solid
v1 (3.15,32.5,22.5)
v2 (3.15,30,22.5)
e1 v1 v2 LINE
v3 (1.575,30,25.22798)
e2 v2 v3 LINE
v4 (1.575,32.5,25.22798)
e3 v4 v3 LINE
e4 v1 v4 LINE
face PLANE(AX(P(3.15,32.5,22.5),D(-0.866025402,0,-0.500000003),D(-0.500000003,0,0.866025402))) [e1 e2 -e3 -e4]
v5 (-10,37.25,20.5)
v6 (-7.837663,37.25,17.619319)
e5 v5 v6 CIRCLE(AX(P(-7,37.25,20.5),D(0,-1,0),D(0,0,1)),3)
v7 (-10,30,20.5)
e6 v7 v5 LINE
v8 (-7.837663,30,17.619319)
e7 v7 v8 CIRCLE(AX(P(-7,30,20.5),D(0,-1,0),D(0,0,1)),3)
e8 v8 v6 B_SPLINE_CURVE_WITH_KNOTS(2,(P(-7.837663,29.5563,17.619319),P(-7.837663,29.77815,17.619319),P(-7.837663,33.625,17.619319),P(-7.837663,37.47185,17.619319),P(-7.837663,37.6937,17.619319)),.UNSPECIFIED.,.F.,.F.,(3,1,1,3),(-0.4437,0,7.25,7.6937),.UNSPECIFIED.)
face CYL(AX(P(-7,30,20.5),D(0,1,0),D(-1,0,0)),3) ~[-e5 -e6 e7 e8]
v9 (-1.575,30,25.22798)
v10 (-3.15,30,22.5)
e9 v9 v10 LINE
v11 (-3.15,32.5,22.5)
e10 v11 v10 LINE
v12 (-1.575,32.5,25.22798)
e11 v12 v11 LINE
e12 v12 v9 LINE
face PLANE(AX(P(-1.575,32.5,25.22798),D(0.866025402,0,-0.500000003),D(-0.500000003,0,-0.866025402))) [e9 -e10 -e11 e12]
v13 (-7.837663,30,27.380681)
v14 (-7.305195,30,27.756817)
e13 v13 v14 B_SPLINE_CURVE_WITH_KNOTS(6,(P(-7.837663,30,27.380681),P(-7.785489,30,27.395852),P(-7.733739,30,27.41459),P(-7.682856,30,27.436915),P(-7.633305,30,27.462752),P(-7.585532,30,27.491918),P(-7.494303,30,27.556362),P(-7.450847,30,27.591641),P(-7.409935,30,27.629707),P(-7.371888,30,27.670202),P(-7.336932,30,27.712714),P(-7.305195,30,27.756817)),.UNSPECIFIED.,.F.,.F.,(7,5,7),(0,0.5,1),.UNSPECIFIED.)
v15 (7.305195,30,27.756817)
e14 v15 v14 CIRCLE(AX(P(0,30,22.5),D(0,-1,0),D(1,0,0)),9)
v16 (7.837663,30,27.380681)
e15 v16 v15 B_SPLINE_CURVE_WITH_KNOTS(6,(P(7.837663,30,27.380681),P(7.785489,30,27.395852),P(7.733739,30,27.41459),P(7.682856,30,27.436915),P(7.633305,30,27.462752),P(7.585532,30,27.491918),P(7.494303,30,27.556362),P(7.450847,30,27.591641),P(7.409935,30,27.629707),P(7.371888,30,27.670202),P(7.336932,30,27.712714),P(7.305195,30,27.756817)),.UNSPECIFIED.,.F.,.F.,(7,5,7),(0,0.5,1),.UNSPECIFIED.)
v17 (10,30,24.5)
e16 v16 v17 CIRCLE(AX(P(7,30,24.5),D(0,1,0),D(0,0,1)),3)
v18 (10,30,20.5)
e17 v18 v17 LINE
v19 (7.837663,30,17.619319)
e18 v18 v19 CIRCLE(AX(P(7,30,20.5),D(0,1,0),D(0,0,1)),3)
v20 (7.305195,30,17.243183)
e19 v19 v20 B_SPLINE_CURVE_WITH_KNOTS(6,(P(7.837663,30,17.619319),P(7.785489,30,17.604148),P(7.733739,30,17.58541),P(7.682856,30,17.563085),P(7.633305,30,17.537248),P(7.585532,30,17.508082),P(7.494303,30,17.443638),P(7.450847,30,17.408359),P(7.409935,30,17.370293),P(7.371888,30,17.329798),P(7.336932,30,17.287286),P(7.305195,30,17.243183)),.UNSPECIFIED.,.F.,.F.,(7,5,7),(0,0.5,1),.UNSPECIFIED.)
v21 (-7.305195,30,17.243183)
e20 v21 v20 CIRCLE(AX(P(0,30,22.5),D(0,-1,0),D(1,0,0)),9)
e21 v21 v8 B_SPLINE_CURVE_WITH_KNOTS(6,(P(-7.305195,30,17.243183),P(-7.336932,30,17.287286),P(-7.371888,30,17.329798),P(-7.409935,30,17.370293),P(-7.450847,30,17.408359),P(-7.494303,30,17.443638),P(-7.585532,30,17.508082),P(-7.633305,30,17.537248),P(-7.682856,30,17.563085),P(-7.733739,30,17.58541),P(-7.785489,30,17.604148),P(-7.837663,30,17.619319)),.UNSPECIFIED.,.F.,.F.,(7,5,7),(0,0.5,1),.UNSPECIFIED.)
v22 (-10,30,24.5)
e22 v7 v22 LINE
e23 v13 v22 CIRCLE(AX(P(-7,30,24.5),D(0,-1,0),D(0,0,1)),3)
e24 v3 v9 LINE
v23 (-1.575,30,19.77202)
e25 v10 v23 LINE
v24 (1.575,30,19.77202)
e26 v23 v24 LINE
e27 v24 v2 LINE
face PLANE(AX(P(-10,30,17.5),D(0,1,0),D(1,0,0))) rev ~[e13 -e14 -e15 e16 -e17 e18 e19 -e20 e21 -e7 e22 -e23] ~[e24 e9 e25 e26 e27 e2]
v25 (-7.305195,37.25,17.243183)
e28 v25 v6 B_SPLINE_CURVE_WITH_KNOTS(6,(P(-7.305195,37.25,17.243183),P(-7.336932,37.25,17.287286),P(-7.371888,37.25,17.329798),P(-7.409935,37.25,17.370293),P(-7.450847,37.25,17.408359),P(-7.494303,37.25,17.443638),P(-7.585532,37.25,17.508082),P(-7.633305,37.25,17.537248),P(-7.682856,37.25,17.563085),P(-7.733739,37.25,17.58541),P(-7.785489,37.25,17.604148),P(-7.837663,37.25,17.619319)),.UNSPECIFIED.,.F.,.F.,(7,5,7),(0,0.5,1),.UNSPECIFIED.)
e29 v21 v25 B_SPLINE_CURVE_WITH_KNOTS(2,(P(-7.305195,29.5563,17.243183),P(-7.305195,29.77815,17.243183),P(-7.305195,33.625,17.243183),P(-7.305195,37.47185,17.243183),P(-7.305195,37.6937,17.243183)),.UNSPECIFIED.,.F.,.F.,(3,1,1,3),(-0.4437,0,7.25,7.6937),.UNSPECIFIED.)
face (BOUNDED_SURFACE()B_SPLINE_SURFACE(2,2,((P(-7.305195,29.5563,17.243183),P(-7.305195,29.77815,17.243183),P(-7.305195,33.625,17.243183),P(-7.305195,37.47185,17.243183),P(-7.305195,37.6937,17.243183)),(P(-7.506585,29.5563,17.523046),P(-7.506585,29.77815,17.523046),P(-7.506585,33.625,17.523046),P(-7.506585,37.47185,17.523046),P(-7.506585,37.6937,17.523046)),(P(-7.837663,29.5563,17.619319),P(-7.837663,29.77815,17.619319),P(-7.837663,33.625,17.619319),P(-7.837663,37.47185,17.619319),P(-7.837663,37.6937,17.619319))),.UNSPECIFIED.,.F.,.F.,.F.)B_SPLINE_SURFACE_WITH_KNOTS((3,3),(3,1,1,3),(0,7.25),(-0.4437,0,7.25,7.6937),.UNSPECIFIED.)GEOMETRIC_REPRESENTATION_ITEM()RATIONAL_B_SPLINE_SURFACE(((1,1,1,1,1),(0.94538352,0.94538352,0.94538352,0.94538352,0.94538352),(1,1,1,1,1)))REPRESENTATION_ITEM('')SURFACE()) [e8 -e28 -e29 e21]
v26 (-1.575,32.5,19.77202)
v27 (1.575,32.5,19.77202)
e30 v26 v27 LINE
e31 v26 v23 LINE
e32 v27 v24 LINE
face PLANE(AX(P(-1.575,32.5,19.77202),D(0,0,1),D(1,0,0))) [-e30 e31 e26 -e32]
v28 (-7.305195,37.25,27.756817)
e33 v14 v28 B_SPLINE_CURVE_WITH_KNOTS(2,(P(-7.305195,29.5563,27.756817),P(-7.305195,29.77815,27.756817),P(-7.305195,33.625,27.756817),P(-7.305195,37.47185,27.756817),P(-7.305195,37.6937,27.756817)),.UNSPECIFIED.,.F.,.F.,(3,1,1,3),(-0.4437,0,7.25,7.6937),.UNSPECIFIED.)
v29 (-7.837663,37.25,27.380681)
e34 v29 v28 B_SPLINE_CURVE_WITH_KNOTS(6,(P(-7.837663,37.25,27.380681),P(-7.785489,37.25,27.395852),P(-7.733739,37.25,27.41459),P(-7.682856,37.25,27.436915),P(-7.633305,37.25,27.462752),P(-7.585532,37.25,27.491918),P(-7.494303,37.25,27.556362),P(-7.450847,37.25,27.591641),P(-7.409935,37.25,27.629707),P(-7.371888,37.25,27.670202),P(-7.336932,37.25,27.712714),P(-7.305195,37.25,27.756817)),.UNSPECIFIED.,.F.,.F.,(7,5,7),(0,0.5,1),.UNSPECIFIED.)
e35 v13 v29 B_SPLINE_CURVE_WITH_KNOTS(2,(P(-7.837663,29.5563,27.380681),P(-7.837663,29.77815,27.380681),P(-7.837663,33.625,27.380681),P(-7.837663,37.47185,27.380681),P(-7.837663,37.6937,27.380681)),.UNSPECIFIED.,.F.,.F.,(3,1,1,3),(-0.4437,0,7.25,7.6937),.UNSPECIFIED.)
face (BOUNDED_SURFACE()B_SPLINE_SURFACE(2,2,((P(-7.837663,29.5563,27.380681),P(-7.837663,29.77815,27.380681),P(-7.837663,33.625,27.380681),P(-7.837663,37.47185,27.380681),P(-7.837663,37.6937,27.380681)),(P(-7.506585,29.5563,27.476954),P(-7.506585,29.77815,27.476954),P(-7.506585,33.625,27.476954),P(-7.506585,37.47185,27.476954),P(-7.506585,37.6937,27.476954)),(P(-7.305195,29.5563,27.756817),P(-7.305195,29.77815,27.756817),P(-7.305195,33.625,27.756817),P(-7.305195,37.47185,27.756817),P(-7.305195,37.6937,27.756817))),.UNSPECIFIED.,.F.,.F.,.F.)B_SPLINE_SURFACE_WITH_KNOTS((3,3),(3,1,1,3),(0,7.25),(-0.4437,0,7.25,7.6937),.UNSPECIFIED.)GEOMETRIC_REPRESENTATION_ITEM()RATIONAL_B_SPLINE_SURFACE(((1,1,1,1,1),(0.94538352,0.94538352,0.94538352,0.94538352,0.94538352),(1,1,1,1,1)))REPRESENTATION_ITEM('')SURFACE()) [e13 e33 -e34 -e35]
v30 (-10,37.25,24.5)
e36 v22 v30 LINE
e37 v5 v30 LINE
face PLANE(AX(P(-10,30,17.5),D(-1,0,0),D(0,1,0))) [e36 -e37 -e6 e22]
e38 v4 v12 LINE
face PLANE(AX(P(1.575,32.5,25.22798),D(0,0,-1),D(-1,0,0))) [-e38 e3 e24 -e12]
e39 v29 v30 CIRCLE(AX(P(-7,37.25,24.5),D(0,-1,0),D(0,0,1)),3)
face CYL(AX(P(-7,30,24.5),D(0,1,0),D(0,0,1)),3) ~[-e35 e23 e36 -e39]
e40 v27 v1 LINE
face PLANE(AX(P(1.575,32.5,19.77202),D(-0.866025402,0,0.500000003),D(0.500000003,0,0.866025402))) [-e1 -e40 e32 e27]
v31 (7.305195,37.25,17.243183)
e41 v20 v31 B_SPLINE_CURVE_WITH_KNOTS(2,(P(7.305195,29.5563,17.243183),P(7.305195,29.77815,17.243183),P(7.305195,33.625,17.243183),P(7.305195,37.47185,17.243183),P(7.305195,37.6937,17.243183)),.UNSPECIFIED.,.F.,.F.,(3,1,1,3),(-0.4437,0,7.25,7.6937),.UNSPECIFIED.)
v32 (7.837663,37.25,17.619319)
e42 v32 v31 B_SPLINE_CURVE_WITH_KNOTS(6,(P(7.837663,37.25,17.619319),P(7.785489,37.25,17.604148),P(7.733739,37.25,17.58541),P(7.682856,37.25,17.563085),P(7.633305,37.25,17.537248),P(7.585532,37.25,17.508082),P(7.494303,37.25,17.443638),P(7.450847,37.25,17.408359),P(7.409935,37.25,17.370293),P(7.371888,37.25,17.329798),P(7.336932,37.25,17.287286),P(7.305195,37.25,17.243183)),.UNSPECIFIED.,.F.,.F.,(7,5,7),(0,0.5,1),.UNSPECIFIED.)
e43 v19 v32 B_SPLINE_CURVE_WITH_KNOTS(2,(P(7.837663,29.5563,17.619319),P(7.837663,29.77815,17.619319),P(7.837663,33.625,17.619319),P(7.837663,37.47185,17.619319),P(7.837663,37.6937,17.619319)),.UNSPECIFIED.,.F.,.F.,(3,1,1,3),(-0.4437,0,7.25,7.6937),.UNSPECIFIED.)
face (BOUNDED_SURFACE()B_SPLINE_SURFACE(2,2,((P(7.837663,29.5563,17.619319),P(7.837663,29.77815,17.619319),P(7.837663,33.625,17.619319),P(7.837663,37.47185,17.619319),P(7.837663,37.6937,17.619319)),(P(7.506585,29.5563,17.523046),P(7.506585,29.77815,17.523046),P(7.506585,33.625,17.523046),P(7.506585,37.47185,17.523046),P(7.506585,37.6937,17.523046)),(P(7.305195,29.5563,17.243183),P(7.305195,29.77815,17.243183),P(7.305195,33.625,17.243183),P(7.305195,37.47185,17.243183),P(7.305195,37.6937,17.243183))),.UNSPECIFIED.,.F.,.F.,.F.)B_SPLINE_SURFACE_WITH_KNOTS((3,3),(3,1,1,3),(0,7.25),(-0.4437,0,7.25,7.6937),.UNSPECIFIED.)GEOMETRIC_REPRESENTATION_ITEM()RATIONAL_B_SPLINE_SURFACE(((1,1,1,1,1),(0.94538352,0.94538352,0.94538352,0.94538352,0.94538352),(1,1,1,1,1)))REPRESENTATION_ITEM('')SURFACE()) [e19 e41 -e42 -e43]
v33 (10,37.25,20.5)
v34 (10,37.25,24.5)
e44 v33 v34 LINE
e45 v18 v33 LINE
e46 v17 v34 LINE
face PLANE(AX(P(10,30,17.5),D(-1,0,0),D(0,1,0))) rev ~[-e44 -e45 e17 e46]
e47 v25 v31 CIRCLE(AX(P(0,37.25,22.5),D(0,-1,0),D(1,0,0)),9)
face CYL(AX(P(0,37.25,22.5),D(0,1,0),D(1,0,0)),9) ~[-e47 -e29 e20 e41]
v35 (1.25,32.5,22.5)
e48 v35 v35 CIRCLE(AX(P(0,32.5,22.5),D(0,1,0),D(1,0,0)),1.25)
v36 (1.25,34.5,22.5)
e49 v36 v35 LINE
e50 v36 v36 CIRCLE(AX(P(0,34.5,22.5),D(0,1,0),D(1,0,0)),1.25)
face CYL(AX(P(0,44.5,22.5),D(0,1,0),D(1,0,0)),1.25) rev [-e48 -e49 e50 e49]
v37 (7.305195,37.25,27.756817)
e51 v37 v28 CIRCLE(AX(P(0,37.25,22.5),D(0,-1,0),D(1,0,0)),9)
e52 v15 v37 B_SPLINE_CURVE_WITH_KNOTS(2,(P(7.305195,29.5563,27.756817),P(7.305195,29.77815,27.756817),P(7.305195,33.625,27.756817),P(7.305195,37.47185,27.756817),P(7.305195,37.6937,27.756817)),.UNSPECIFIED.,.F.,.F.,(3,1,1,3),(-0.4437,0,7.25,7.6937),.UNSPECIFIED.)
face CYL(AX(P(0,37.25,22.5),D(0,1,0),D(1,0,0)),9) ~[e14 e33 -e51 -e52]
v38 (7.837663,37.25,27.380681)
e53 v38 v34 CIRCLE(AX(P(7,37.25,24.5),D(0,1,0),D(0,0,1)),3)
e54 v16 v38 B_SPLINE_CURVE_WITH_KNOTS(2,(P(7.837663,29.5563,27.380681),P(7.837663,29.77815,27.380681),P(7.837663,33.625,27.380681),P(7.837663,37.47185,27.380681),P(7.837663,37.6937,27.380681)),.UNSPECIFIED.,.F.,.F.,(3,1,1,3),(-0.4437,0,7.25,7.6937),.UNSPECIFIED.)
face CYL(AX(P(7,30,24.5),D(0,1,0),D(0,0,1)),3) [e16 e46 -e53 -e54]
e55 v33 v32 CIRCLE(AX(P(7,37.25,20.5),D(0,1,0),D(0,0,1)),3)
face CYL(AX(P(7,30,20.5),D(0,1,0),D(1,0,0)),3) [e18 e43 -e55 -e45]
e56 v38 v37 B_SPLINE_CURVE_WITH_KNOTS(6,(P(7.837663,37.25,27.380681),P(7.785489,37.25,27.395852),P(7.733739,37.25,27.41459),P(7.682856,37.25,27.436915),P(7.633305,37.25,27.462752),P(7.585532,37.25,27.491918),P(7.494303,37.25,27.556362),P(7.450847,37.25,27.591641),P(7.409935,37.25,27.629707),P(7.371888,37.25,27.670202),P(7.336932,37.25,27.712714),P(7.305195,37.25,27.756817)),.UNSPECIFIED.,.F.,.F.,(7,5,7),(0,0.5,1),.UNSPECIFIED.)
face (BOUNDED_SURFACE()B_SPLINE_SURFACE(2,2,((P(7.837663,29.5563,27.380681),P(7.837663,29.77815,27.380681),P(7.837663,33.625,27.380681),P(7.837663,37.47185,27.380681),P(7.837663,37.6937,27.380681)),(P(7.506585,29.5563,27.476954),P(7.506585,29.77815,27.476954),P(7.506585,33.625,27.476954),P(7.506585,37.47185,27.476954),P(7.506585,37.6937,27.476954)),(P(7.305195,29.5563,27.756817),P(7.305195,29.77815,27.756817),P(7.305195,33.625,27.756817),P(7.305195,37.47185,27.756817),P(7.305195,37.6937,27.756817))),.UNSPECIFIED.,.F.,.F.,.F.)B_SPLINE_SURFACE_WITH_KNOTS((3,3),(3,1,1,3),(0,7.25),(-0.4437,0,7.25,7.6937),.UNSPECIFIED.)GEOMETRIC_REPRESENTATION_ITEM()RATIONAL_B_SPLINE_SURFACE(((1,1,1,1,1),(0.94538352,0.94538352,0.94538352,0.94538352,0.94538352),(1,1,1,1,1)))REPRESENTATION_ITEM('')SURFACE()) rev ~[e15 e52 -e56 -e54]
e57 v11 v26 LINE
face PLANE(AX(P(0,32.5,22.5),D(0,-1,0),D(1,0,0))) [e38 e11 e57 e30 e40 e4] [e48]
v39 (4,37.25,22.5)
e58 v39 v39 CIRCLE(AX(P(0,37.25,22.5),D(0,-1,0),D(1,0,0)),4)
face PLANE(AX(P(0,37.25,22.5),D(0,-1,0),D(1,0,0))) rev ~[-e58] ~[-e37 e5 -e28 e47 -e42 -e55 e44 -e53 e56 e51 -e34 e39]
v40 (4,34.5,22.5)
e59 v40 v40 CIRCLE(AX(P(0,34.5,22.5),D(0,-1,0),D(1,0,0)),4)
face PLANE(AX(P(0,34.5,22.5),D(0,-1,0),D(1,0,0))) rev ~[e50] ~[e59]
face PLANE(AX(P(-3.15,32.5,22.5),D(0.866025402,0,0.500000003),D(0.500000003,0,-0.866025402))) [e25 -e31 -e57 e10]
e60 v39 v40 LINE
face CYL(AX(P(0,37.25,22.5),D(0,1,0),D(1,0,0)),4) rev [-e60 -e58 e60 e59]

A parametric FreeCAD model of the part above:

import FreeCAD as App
import Part
import Sketcher
Q = App.Units.Quantity


def edges_at(feature, points):
    """Names of the edges that pass closest to the given points."""
    edges = feature.Shape.Edges
    near = lambda p: min(range(len(edges)), key=lambda i: edges[i].distToShape(Part.Vertex(*p))[0])
    return sorted({f"Edge{near(p) + 1}" for p in points})


def add_polygon(sketch, points):
    """Adds a closed chain of lines whose ends are joined by coincident constraints."""
    first, n = sketch.GeometryCount, len(points)
    for a, b in zip(points, points[1:] + points[:1]):
        sketch.addGeometry(Part.LineSegment(App.Vector(*a, 0), App.Vector(*b, 0)), False)
    for i in range(n):
        sketch.addConstraint(Sketcher.Constraint("Coincident", first + i, 2, first + (i + 1) % n, 1))

doc = App.newDocument("Part")
params = doc.addObject("Spreadsheet::Sheet", "Params")
for row, (alias, value) in enumerate([
    ("sketch1_diameter", "8 mm"),
    ("pad1_length", "10 mm"),
    ("sketch2_diameter", "2.5 mm"),
    ("pad2_length", "50 mm"),
    ("sketch3_width", "3.15 mm"),
    ("pad3_length", "2.5 mm"),
    ("sketch4_width", "20 mm"),
    ("sketch4_height", "7.25 mm"),
    ("pad4_length", "10 mm"),
    ("fillet_radius", "3 mm"),
    ("fillet2_radius", "3 mm"),
    ("sketch5_diameter", "8 mm"),
    ("pad5_length", "7.25 mm"),
    ("sketch6_diameter", "18 mm"),
    ("pad6_length", "7.25 mm"),
    ("fillet3_radius", "1 mm"),
], start=1):
    params.set(f"A{row}", alias)
    params.set(f"B{row}", "=" + value)
    params.setAlias(f"B{row}", alias)

body = doc.addObject("PartDesign::Body", "Body")

# Sketch on XZ plane
sketch1 = body.newObject("Sketcher::SketchObject", "Sketch")
sketch1.AttachmentSupport = (doc.getObject("XZ_Plane"), [""])
sketch1.MapMode = "FlatFace"
sketch1.AttachmentOffset = App.Placement(App.Vector(0, 0, 16), App.Rotation())
sketch1.addGeometry(Part.Circle(App.Vector(0, 22.5, 0), App.Vector(0, 0, 1), 4), False)
sketch1.addConstraint(Sketcher.Constraint("PointOnObject", 0, 3, -2))
sketch1.addConstraint(Sketcher.Constraint("Diameter", 0, Q("8 mm")))
sketch1.addConstraint(Sketcher.Constraint("DistanceY", -1, 1, 0, 3, Q("22.5 mm")))
sketch1.setExpression("Constraints[1]", "Params.sketch1_diameter")
pad1 = body.newObject("PartDesign::Pad", "Pad")
pad1.Profile = sketch1
pad1.setExpression("Length", "Params.pad1_length")
body2 = doc.addObject("PartDesign::Body", "Body001")

# Sketch on XZ plane
sketch2 = body2.newObject("Sketcher::SketchObject", "Sketch001")
sketch2.AttachmentSupport = (doc.getObject("XZ_Plane001"), [""])
sketch2.MapMode = "FlatFace"
sketch2.AttachmentOffset = App.Placement(App.Vector(0, 0, 16), App.Rotation())
sketch2.addGeometry(Part.Circle(App.Vector(0, 22.5, 0), App.Vector(0, 0, 1), 1.2), False)
sketch2.addConstraint(Sketcher.Constraint("PointOnObject", 0, 3, -2))
sketch2.addConstraint(Sketcher.Constraint("Diameter", 0, Q("2.5 mm")))
sketch2.addConstraint(Sketcher.Constraint("DistanceY", -1, 1, 0, 3, Q("22.5 mm")))
sketch2.setExpression("Constraints[1]", "Params.sketch2_diameter")
pad2 = body2.newObject("PartDesign::Pad", "Pad001")
pad2.Profile = sketch2
pad2.setExpression("Length", "Params.pad2_length")
doc.recompute()

boolean = body2.newObject("PartDesign::Boolean", "Boolean")
boolean.Type = "Fuse"
boolean.addObjects([body])
body3 = doc.addObject("PartDesign::Body", "Body002")
doc.recompute()

body2.Placement = App.Placement(App.Vector(0, 57, 0), App.Rotation(App.Vector(0, 0, 1), 0))
boolean2 = body3.newObject("PartDesign::Boolean", "Boolean001")
boolean2.Type = "Fuse"
boolean2.addObjects([body2])
body4 = doc.addObject("PartDesign::Body", "Body003")

# Sketch on XZ plane
sketch3 = body4.newObject("Sketcher::SketchObject", "Sketch002")
sketch3.AttachmentSupport = (doc.getObject("XZ_Plane003"), [""])
sketch3.MapMode = "FlatFace"
sketch3.AttachmentOffset = App.Placement(App.Vector(0, 0, -29), App.Rotation())
add_polygon(sketch3, [(3.1, 22.5), (1.6, 25.2), (-1.6, 25.2), (-3.1, 22.5), (-1.6, 19.8), (1.6, 19.8)])  # lines 0-5
sketch3.addConstraint(Sketcher.Constraint("Horizontal", 1))
sketch3.addConstraint(Sketcher.Constraint("Horizontal", 4))
sketch3.addConstraint(Sketcher.Constraint("Symmetric", 2, 2, 5, 2, -2))
sketch3.addConstraint(Sketcher.Constraint("Parallel", 0, 3))
sketch3.addConstraint(Sketcher.Constraint("Parallel", 2, 5))
sketch3.addConstraint(Sketcher.Constraint("Vertical", 1, 2, 3, 2))
sketch3.addConstraint(Sketcher.Constraint("Vertical", 0, 2, 4, 2))
sketch3.addConstraint(Sketcher.Constraint("Angle", 0, Q("120 deg")))
sketch3.addConstraint(Sketcher.Constraint("DistanceX", 1, 2, 1, 1, Q("3.15 mm")))
sketch3.addConstraint(Sketcher.Constraint("DistanceY", -1, 1, 2, 2, Q("22.5 mm")))
sketch3.addConstraint(Sketcher.Constraint("DistanceX", 2, 2, 5, 2, Q("6.3 mm")))
sketch3.setExpression("Constraints[14]", "Params.sketch3_width")
pad3 = body4.newObject("PartDesign::Pad", "Pad002")
pad3.Profile = sketch3
pad3.setExpression("Length", "Params.pad3_length")
doc.recompute()

boolean3 = body4.newObject("PartDesign::Boolean", "Boolean002")
boolean3.Type = "Fuse"
boolean3.addObjects([body3])
body5 = doc.addObject("PartDesign::Body", "Body004")
doc.recompute()

body4.Placement = App.Placement(App.Vector(0, -26.5, -5), App.Rotation(App.Vector(0, 0, 1), 0))
boolean4 = body5.newObject("PartDesign::Boolean", "Boolean003")
boolean4.Type = "Fuse"
boolean4.addObjects([body4])
body6 = doc.addObject("PartDesign::Body", "Body005")

# Sketch on XY plane
sketch4 = body6.newObject("Sketcher::SketchObject", "Sketch003")
sketch4.AttachmentSupport = (doc.getObject("XY_Plane005"), [""])
sketch4.MapMode = "FlatFace"
sketch4.AttachmentOffset = App.Placement(App.Vector(0, 0, 12.5), App.Rotation())
add_polygon(sketch4, [(-10, 7), (-10, 0), (10, 0), (10, 7)])  # lines 0-3
sketch4.addConstraint(Sketcher.Constraint("Vertical", 0))
sketch4.addConstraint(Sketcher.Constraint("Horizontal", 1))
sketch4.addConstraint(Sketcher.Constraint("Vertical", 2))
sketch4.addConstraint(Sketcher.Constraint("Horizontal", 3))
sketch4.addConstraint(Sketcher.Constraint("Symmetric", 0, 2, 1, 2, -1, 1))
sketch4.addConstraint(Sketcher.Constraint("DistanceX", 1, 1, 1, 2, Q("20 mm")))
sketch4.addConstraint(Sketcher.Constraint("DistanceY", 0, 2, 0, 1, Q("7.25 mm")))
sketch4.setExpression("Constraints[9]", "Params.sketch4_width")
sketch4.setExpression("Constraints[10]", "Params.sketch4_height")
pad4 = body6.newObject("PartDesign::Pad", "Pad003")
pad4.Profile = sketch4
pad4.setExpression("Length", "Params.pad4_length")
doc.recompute()

boolean5 = body6.newObject("PartDesign::Boolean", "Boolean004")
boolean5.Type = "Cut"
boolean5.addObjects([body5])
doc.recompute()

fillet = body6.newObject("PartDesign::Fillet", "Fillet")
fillet.Base = (boolean5, edges_at(boolean5, [(10, 3.625, 22.5)]))
fillet.setExpression("Radius", "Params.fillet_radius")
doc.recompute()

fillet2 = body6.newObject("PartDesign::Fillet", "Fillet001")
fillet2.Base = (fillet, edges_at(fillet, [(10, 3.625, 12.5), (-10, 3.625, 12.5), (-10, 3.625, 22.5)]))
fillet2.setExpression("Radius", "Params.fillet2_radius")
body7 = doc.addObject("PartDesign::Body", "Body006")

# Sketch on XZ plane
sketch5 = body7.newObject("Sketcher::SketchObject", "Sketch004")
sketch5.AttachmentSupport = (doc.getObject("XZ_Plane006"), [""])
sketch5.MapMode = "FlatFace"
sketch5.addGeometry(Part.Circle(App.Vector(0, 17.5, 0), App.Vector(0, 0, 1), 4), False)
sketch5.addConstraint(Sketcher.Constraint("PointOnObject", 0, 3, -2))
sketch5.addConstraint(Sketcher.Constraint("Diameter", 0, Q("8 mm")))
sketch5.addConstraint(Sketcher.Constraint("DistanceY", -1, 1, 0, 3, Q("17.5 mm")))
sketch5.setExpression("Constraints[1]", "Params.sketch5_diameter")
pad5 = body7.newObject("PartDesign::Pad", "Pad004")
pad5.Profile = sketch5
pad5.setExpression("Length", "Params.pad5_length")
body8 = doc.addObject("PartDesign::Body", "Body007")

# Sketch on XZ plane
sketch6 = body8.newObject("Sketcher::SketchObject", "Sketch005")
sketch6.AttachmentSupport = (doc.getObject("XZ_Plane007"), [""])
sketch6.MapMode = "FlatFace"
sketch6.addGeometry(Part.Circle(App.Vector(0, 18, 0), App.Vector(0, 0, 1), 9), False)
sketch6.addConstraint(Sketcher.Constraint("PointOnObject", 0, 3, -2))
sketch6.addConstraint(Sketcher.Constraint("Diameter", 0, Q("18 mm")))
sketch6.addConstraint(Sketcher.Constraint("DistanceY", -1, 1, 0, 3, Q("17.5 mm")))
sketch6.setExpression("Constraints[1]", "Params.sketch6_diameter")
pad6 = body8.newObject("PartDesign::Pad", "Pad005")
pad6.Profile = sketch6
pad6.setExpression("Length", "Params.pad6_length")
doc.recompute()

boolean6 = body8.newObject("PartDesign::Boolean", "Boolean005")
boolean6.Type = "Cut"
boolean6.addObjects([body7])
body9 = doc.addObject("PartDesign::Body", "Body008")
doc.recompute()

body8.Placement = App.Placement(App.Vector(0, 7.25, 0), App.Rotation(App.Vector(0, 0, 1), 0))
boolean7 = body9.newObject("PartDesign::Boolean", "Boolean006")
boolean7.Type = "Fuse"
boolean7.addObjects([body8])
doc.recompute()

boolean8 = body9.newObject("PartDesign::Boolean", "Boolean007")
boolean8.Type = "Fuse"
boolean8.addObjects([body6])
doc.recompute()

fillet3 = body9.newObject("PartDesign::Fillet", "Fillet002")
fillet3.Base = (boolean8, edges_at(boolean8, [
    (7.513, 3.625, 22.456),
    (7.513, 3.625, 12.544),
    (-7.513, 3.625, 12.544),
    (-7.513, 3.625, 22.456),
]))
fillet3.setExpression("Radius", "Params.fillet3_radius")
body10 = doc.addObject("PartDesign::Body", "Body009")
doc.recompute()

body9.Placement = App.Placement(App.Vector(0, 30, 5), App.Rotation(App.Vector(0, 0, 1), 0))
boolean9 = body10.newObject("PartDesign::Boolean", "Boolean008")
boolean9.Type = "Fuse"
boolean9.addObjects([body9])

doc.recompute()
